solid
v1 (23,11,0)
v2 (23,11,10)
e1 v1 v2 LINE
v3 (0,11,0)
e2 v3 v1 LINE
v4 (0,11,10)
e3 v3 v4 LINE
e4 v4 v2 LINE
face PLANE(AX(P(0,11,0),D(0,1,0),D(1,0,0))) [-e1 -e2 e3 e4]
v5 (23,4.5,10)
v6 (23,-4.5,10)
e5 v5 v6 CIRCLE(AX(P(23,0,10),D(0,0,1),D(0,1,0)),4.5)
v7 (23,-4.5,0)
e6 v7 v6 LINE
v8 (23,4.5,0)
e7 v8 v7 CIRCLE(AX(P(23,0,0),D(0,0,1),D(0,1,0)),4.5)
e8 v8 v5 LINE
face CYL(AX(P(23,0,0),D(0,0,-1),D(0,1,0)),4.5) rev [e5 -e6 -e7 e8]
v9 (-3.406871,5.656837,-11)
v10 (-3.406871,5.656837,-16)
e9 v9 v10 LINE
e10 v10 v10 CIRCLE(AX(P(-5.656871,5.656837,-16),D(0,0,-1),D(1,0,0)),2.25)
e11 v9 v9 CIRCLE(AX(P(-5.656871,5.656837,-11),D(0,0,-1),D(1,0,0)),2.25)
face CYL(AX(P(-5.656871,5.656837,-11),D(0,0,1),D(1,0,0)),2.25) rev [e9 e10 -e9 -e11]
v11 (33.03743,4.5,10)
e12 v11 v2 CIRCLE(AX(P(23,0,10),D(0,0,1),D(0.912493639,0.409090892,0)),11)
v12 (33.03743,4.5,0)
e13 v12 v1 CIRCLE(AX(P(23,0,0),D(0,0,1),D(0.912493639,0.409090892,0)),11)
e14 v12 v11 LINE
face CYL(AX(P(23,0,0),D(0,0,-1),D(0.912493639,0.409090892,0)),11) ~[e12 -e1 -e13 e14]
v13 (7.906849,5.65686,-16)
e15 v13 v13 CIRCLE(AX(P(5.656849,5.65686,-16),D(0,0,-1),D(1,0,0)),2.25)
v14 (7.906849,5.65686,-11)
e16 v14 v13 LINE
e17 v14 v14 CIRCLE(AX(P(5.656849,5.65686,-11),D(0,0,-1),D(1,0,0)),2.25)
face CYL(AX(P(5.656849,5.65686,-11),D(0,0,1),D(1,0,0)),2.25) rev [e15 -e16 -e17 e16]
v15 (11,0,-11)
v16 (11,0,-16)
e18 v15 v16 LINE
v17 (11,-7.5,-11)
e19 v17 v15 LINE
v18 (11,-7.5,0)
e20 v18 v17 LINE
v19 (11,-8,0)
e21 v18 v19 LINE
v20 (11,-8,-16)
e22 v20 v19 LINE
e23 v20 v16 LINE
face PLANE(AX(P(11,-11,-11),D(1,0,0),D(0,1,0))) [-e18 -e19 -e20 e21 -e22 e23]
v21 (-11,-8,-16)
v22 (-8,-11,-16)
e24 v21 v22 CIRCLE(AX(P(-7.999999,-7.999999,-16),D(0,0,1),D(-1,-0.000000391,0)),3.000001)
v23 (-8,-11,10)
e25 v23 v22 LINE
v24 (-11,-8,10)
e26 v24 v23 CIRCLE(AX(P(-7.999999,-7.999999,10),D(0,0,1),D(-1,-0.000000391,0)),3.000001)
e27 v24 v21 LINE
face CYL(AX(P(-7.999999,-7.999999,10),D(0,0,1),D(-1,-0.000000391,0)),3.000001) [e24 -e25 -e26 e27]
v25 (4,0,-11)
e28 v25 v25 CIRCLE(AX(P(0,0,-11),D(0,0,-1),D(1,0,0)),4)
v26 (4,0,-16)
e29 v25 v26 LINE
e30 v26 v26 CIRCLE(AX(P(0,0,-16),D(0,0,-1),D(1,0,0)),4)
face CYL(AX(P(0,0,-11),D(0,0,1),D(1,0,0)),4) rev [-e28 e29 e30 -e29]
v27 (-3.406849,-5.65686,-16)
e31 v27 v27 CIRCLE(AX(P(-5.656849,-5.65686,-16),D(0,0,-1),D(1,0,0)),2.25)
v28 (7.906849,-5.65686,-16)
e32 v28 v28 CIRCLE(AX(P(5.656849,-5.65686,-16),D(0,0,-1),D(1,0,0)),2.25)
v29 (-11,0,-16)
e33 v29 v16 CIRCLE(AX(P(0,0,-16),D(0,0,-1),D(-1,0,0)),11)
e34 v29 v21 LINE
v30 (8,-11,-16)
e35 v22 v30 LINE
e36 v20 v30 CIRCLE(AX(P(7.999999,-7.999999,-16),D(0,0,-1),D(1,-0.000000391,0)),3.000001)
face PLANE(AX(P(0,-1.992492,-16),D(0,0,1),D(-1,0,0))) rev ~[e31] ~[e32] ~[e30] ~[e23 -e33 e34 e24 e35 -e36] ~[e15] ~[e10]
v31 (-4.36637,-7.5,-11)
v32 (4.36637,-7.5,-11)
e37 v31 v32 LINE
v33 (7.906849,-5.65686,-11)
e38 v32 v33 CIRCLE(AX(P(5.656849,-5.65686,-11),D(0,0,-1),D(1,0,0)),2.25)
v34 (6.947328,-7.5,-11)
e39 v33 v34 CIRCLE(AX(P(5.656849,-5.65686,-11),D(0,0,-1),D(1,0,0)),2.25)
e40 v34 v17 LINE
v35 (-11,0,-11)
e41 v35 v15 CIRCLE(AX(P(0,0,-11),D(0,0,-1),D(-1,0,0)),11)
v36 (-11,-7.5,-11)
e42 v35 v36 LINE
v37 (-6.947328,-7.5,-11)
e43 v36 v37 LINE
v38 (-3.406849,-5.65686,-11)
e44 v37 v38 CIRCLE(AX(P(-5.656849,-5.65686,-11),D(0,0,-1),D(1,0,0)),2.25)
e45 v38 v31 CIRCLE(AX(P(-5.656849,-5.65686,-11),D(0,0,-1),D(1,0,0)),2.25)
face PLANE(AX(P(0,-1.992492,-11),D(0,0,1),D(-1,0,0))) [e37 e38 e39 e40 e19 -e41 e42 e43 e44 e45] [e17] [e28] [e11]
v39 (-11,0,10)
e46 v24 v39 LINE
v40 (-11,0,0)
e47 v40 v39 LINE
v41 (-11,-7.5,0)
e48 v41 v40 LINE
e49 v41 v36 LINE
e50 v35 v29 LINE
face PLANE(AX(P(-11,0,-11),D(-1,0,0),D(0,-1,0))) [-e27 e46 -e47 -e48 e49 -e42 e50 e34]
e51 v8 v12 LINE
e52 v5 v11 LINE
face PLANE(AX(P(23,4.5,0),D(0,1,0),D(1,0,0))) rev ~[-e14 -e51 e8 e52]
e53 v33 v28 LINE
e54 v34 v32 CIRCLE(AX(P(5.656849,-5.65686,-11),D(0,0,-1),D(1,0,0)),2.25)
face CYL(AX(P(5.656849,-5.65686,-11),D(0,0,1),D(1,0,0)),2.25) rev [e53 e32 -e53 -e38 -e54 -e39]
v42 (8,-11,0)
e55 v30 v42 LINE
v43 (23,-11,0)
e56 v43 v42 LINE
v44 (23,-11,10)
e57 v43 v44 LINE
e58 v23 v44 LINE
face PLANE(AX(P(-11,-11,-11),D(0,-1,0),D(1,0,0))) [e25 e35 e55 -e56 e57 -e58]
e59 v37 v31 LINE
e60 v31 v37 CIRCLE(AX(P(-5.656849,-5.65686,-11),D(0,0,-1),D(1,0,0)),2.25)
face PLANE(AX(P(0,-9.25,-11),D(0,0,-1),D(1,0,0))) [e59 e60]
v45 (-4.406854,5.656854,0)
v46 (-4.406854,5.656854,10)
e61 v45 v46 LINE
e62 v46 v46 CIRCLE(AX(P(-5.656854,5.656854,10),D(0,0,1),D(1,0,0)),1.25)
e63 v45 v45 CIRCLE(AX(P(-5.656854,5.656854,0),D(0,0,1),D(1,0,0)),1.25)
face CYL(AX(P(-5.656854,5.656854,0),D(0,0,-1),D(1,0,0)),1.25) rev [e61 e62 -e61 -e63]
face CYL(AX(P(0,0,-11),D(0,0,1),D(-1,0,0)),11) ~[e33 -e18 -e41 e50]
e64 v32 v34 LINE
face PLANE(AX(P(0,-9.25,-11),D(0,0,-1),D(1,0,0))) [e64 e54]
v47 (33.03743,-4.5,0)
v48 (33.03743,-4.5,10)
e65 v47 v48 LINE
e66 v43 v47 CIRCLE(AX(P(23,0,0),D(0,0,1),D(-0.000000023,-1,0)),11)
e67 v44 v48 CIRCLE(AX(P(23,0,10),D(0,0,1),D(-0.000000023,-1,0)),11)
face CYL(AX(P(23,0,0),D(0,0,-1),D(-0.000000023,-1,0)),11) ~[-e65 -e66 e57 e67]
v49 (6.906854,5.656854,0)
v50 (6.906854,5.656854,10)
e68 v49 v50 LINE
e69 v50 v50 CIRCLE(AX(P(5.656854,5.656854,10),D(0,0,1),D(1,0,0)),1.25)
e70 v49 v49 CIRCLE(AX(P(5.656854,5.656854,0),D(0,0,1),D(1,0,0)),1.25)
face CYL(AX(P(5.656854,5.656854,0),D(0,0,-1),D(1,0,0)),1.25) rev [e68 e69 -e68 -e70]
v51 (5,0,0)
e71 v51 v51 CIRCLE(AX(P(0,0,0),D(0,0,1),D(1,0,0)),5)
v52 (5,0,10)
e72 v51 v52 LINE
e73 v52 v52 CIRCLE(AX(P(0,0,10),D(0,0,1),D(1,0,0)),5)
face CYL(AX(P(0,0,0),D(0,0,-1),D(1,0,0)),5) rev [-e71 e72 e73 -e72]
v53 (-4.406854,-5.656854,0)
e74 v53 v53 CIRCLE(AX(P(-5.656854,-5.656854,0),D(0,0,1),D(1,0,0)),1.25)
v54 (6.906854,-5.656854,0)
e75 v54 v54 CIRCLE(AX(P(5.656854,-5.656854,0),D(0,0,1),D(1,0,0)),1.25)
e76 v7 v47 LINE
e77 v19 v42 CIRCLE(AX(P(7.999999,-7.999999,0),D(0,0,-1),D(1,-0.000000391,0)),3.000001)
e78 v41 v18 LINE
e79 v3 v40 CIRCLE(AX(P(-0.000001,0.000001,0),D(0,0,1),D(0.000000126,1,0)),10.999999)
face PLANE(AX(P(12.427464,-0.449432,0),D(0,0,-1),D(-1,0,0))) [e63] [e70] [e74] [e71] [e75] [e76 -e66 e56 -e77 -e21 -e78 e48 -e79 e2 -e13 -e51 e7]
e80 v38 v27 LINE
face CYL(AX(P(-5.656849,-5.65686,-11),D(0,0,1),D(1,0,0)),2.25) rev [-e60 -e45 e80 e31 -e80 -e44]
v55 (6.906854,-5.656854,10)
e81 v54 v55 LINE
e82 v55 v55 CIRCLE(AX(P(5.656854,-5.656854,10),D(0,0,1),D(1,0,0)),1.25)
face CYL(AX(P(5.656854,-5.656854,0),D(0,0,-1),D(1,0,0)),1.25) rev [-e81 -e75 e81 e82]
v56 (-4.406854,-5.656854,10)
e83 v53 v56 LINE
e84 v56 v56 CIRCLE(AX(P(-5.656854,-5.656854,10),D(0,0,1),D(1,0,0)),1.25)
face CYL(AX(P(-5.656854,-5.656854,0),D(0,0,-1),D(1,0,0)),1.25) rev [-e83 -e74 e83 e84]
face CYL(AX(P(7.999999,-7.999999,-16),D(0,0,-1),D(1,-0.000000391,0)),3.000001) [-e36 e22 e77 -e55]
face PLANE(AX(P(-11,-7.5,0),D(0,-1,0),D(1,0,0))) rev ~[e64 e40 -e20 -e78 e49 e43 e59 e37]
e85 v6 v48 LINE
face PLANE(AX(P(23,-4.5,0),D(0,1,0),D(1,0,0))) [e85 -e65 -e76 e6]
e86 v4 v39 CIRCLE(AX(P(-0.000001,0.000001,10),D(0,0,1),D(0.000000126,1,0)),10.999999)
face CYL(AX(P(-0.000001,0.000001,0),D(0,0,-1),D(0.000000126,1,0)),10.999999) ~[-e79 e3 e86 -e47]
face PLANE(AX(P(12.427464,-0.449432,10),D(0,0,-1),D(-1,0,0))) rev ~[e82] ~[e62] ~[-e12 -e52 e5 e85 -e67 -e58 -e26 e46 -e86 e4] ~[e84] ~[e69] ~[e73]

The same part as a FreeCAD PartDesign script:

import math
import FreeCAD as App
import Part
import Sketcher

V = App.Vector
Q = App.Units.Quantity


def add_polygon(sketch, points):
    """Adds a closed chain of lines whose ends are joined by coincident constraints."""
    first, n = sketch.GeometryCount, len(points)
    for a, b in zip(points, points[1:] + points[:1]):
        sketch.addGeometry(Part.LineSegment(App.Vector(*a, 0), App.Vector(*b, 0)), False)
    for i in range(n):
        sketch.addConstraint(Sketcher.Constraint("Coincident", first + i, 2, first + (i + 1) % n, 1))

doc = App.newDocument("Part")
body = doc.addObject("PartDesign::Body", "Body")

sketch1 = body.newObject("Sketcher::SketchObject", "Sketch")
sketch1.AttachmentSupport = (doc.getObject("XY_Plane"), [""])
sketch1.MapMode = "FlatFace"
sketch1.addGeometry([
    Part.LineSegment(V(23, 11, 0), V(0, 11, 0)),
    Part.ArcOfCircle(Part.Circle(V(0, 0, 0), V(0, 0, 1), 11), math.radians(90), math.radians(180)),
    Part.LineSegment(V(-11, 0, 0), V(-11, -11, 0)),
    Part.LineSegment(V(-11, -11, 0), V(23, -11, 0)),
    Part.ArcOfCircle(Part.Circle(V(23, 0, 0), V(0, 0, 1), 11), math.radians(-90), math.radians(-24)),
    Part.LineSegment(V(33, -4.5, 0), V(23, -4.5, 0)),
    Part.ArcOfCircle(Part.Circle(V(23, 0, 0), V(0, 0, 1), 4.5), math.radians(90), math.radians(270)),
    Part.LineSegment(V(23, 4.5, 0), V(33, 4.5, 0)),
    Part.ArcOfCircle(Part.Circle(V(23, 0, 0), V(0, 0, 1), 11), math.radians(24), math.radians(90)),
    Part.Circle(V(5.7, -5.7, 0), V(0, 0, 1), 1.2),
    Part.Circle(V(-5.7, -5.7, 0), V(0, 0, 1), 1.2),
    Part.Circle(V(5.7, 5.7, 0), V(0, 0, 1), 1.2),
    Part.Circle(V(0, 0, 0), V(0, 0, 1), 5),
    Part.Circle(V(-5.7, 5.7, 0), V(0, 0, 1), 1.2),
], False)
sketch1.addConstraint([
    Sketcher.Constraint("Tangent", 0, 2, 1, 1),
    Sketcher.Constraint("Tangent", 1, 2, 2, 1),
    Sketcher.Constraint("Coincident", 2, 2, 3, 1),
    Sketcher.Constraint("Tangent", 3, 2, 4, 1),
    Sketcher.Constraint("Coincident", 4, 2, 5, 1),
    Sketcher.Constraint("Tangent", 5, 2, 6, 2),
    Sketcher.Constraint("Tangent", 6, 1, 7, 1),
    Sketcher.Constraint("Coincident", 7, 2, 8, 1),
    Sketcher.Constraint("Tangent", 8, 2, 0, 1),
    Sketcher.Constraint("Horizontal", 0),
    Sketcher.Constraint("Vertical", 2),
    Sketcher.Constraint("Horizontal", 3),
    Sketcher.Constraint("Horizontal", 5),
    Sketcher.Constraint("Horizontal", 7),
    Sketcher.Constraint("Coincident", 1, 3, -1, 1),
    Sketcher.Constraint("Coincident", 12, 3, -1, 1),
    Sketcher.Constraint("Coincident", 6, 3, 4, 3),
    Sketcher.Constraint("Coincident", 8, 3, 4, 3),
    Sketcher.Constraint("Equal", 1, 4),
    Sketcher.Constraint("Equal", 4, 8),
    Sketcher.Constraint("Equal", 9, 10),
    Sketcher.Constraint("Equal", 10, 11),
    Sketcher.Constraint("Equal", 11, 13),
    Sketcher.Constraint("Symmetric", 10, 3, 11, 3, -1, 1),
    Sketcher.Constraint("Symmetric", 9, 3, 13, 3, -1, 1),
    Sketcher.Constraint("Symmetric", 9, 3, 10, 3, -2),
    Sketcher.Constraint("Diameter", 12, Q("10 mm")),
    Sketcher.Constraint("Radius", 1, Q("10.999999 mm")),
    Sketcher.Constraint("Diameter", 9, Q("2.5 mm")),
    Sketcher.Constraint("Radius", 6, Q("4.5 mm")),
    Sketcher.Constraint("DistanceX", 0, 2, 0, 1, Q("23 mm")),
    Sketcher.Constraint("DistanceX", -1, 1, 9, 3, Q("5.656854 mm")),
    Sketcher.Constraint("DistanceY", 9, 3, -1, 1, Q("5.656854 mm")),
])
pad1 = body.newObject("PartDesign::Pad", "Pad")
pad1.Profile = sketch1
pad1.Length = 10

sketch2 = body.newObject("Sketcher::SketchObject", "Sketch001")
sketch2.AttachmentSupport = (doc.getObject("XY_Plane"), [""])
sketch2.MapMode = "FlatFace"
add_polygon(sketch2, [(-11, -11), (-11, -7.5), (11, -7.5), (11, -11)])
sketch2.addConstraint([
    Sketcher.Constraint("Vertical", 0),
    Sketcher.Constraint("Horizontal", 1),
    Sketcher.Constraint("Vertical", 2),
    Sketcher.Constraint("Horizontal", 3),
    Sketcher.Constraint("DistanceX", 1, 1, 1, 2, Q("22 mm")),
    Sketcher.Constraint("DistanceY", 0, 1, 0, 2, Q("3.5 mm")),
    Sketcher.Constraint("DistanceX", 0, 2, -1, 1, Q("11 mm")),
    Sketcher.Constraint("DistanceY", 2, 2, -1, 1, Q("11 mm")),
])
pad2 = body.newObject("PartDesign::Pad", "Pad001")
pad2.Profile = sketch2
pad2.Length = 11
pad2.Reversed = True

sketch3 = body.newObject("Sketcher::SketchObject", "Sketch002")
sketch3.AttachmentSupport = (doc.getObject("XY_Plane"), [""])
sketch3.MapMode = "FlatFace"
sketch3.AttachmentOffset = App.Placement(V(0, 0, -11), App.Rotation())
sketch3.addGeometry([
    Part.LineSegment(V(-11, -11, 0), V(-11, 0, 0)),
    Part.ArcOfCircle(Part.Circle(V(0, 0, 0), V(0, 0, 1), 11), math.radians(0), math.radians(180)),
    Part.LineSegment(V(11, 0, 0), V(11, -11, 0)),
    Part.LineSegment(V(11, -11, 0), V(-11, -11, 0)),
    Part.Circle(V(5.7, 5.7, 0), V(0, 0, 1), 2.2),
    Part.Circle(V(-5.7, 5.7, 0), V(0, 0, 1), 2.2),
    Part.Circle(V(0, 0, 0), V(0, 0, 1), 4),
    Part.Circle(V(5.7, -5.7, 0), V(0, 0, 1), 2.2),
    Part.Circle(V(-5.7, -5.7, 0), V(0, 0, 1), 2.2),
], False)
sketch3.addConstraint([
    Sketcher.Constraint("Tangent", 0, 2, 1, 2),
    Sketcher.Constraint("Tangent", 1, 1, 2, 1),
    Sketcher.Constraint("Coincident", 2, 2, 3, 1),
    Sketcher.Constraint("Coincident", 3, 2, 0, 1),
    Sketcher.Constraint("Vertical", 0),
    Sketcher.Constraint("Vertical", 2),
    Sketcher.Constraint("Horizontal", 3),
    Sketcher.Constraint("Coincident", 1, 3, -1, 1),
    Sketcher.Constraint("Coincident", 6, 3, -1, 1),
    Sketcher.Constraint("Equal", 4, 5),
    Sketcher.Constraint("Equal", 5, 7),
    Sketcher.Constraint("Equal", 7, 8),
    Sketcher.Constraint("Symmetric", 4, 3, 8, 3, -1, 1),
    Sketcher.Constraint("Symmetric", 7, 3, 8, 3, -2),
    Sketcher.Constraint("Diameter", 6, Q("8 mm")),
    Sketcher.Constraint("Radius", 1, Q("11 mm")),
    Sketcher.Constraint("Diameter", 4, Q("4.5 mm")),
    Sketcher.Constraint("DistanceY", 0, 1, 0, 2, Q("11 mm")),
    Sketcher.Constraint("DistanceX", -1, 1, 4, 3, Q("5.656849 mm")),
    Sketcher.Constraint("DistanceY", -1, 1, 4, 3, Q("5.65686 mm")),
    Sketcher.Constraint("DistanceX", 5, 3, -1, 1, Q("5.656871 mm")),
    Sketcher.Constraint("DistanceY", -1, 1, 5, 3, Q("5.656837 mm")),
])
pad3 = body.newObject("PartDesign::Pad", "Pad002")
pad3.Profile = sketch3
pad3.Length = 5
pad3.Reversed = True

sketch4 = body.newObject("Sketcher::SketchObject", "Sketch003")
sketch4.AttachmentSupport = (doc.getObject("XY_Plane"), [""])
sketch4.MapMode = "FlatFace"
sketch4.AttachmentOffset = App.Placement(V(0, 0, 10), App.Rotation())
sketch4.addGeometry([
    Part.LineSegment(V(-11, -8, 0), V(-11, -11, 0)),
    Part.LineSegment(V(-11, -11, 0), V(-8, -11, 0)),
    Part.ArcOfCircle(Part.Circle(V(-8, -8, 0), V(0, 0, 1), 3), math.radians(-180), math.radians(-90)),
], False)
sketch4.addConstraint([
    Sketcher.Constraint("Coincident", 0, 2, 1, 1),
    Sketcher.Constraint("Tangent", 1, 2, 2, 2),
    Sketcher.Constraint("Tangent", 2, 1, 0, 1),
    Sketcher.Constraint("Vertical", 0),
    Sketcher.Constraint("Horizontal", 1),
    Sketcher.Constraint("Radius", 2, Q("3.000001 mm")),
    Sketcher.Constraint("DistanceX", 2, 3, -1, 1, Q("7.999999 mm")),
    Sketcher.Constraint("DistanceY", 2, 3, -1, 1, Q("7.999999 mm")),
])
pocket1 = body.newObject("PartDesign::Pocket", "Pocket")
pocket1.Profile = sketch4
pocket1.Type = "ThroughAll"

sketch5 = body.newObject("Sketcher::SketchObject", "Sketch004")
sketch5.AttachmentSupport = (doc.getObject("XY_Plane"), [""])
sketch5.MapMode = "FlatFace"
sketch5.AttachmentOffset = App.Placement(V(0, 0, -16), App.Rotation())
sketch5.addGeometry([
    Part.LineSegment(V(11, -11, 0), V(8, -11, 0)),
    Part.ArcOfCircle(Part.Circle(V(8, -8, 0), V(0, 0, 1), 3), math.radians(-90), math.radians(0)),
    Part.LineSegment(V(11, -8, 0), V(11, -11, 0)),
], False)
sketch5.addConstraint([
    Sketcher.Constraint("Tangent", 0, 2, 1, 1),
    Sketcher.Constraint("Tangent", 1, 2, 2, 1),
    Sketcher.Constraint("Coincident", 2, 2, 0, 1),
    Sketcher.Constraint("Horizontal", 0),
    Sketcher.Constraint("Vertical", 2),
    Sketcher.Constraint("Radius", 1, Q("3.000001 mm")),
    Sketcher.Constraint("DistanceX", -1, 1, 1, 3, Q("7.999999 mm")),
    Sketcher.Constraint("DistanceY", 1, 3, -1, 1, Q("7.999999 mm")),
])
pocket2 = body.newObject("PartDesign::Pocket", "Pocket001")
pocket2.Profile = sketch5
pocket2.Length = 16
pocket2.Reversed = True

doc.recompute()
